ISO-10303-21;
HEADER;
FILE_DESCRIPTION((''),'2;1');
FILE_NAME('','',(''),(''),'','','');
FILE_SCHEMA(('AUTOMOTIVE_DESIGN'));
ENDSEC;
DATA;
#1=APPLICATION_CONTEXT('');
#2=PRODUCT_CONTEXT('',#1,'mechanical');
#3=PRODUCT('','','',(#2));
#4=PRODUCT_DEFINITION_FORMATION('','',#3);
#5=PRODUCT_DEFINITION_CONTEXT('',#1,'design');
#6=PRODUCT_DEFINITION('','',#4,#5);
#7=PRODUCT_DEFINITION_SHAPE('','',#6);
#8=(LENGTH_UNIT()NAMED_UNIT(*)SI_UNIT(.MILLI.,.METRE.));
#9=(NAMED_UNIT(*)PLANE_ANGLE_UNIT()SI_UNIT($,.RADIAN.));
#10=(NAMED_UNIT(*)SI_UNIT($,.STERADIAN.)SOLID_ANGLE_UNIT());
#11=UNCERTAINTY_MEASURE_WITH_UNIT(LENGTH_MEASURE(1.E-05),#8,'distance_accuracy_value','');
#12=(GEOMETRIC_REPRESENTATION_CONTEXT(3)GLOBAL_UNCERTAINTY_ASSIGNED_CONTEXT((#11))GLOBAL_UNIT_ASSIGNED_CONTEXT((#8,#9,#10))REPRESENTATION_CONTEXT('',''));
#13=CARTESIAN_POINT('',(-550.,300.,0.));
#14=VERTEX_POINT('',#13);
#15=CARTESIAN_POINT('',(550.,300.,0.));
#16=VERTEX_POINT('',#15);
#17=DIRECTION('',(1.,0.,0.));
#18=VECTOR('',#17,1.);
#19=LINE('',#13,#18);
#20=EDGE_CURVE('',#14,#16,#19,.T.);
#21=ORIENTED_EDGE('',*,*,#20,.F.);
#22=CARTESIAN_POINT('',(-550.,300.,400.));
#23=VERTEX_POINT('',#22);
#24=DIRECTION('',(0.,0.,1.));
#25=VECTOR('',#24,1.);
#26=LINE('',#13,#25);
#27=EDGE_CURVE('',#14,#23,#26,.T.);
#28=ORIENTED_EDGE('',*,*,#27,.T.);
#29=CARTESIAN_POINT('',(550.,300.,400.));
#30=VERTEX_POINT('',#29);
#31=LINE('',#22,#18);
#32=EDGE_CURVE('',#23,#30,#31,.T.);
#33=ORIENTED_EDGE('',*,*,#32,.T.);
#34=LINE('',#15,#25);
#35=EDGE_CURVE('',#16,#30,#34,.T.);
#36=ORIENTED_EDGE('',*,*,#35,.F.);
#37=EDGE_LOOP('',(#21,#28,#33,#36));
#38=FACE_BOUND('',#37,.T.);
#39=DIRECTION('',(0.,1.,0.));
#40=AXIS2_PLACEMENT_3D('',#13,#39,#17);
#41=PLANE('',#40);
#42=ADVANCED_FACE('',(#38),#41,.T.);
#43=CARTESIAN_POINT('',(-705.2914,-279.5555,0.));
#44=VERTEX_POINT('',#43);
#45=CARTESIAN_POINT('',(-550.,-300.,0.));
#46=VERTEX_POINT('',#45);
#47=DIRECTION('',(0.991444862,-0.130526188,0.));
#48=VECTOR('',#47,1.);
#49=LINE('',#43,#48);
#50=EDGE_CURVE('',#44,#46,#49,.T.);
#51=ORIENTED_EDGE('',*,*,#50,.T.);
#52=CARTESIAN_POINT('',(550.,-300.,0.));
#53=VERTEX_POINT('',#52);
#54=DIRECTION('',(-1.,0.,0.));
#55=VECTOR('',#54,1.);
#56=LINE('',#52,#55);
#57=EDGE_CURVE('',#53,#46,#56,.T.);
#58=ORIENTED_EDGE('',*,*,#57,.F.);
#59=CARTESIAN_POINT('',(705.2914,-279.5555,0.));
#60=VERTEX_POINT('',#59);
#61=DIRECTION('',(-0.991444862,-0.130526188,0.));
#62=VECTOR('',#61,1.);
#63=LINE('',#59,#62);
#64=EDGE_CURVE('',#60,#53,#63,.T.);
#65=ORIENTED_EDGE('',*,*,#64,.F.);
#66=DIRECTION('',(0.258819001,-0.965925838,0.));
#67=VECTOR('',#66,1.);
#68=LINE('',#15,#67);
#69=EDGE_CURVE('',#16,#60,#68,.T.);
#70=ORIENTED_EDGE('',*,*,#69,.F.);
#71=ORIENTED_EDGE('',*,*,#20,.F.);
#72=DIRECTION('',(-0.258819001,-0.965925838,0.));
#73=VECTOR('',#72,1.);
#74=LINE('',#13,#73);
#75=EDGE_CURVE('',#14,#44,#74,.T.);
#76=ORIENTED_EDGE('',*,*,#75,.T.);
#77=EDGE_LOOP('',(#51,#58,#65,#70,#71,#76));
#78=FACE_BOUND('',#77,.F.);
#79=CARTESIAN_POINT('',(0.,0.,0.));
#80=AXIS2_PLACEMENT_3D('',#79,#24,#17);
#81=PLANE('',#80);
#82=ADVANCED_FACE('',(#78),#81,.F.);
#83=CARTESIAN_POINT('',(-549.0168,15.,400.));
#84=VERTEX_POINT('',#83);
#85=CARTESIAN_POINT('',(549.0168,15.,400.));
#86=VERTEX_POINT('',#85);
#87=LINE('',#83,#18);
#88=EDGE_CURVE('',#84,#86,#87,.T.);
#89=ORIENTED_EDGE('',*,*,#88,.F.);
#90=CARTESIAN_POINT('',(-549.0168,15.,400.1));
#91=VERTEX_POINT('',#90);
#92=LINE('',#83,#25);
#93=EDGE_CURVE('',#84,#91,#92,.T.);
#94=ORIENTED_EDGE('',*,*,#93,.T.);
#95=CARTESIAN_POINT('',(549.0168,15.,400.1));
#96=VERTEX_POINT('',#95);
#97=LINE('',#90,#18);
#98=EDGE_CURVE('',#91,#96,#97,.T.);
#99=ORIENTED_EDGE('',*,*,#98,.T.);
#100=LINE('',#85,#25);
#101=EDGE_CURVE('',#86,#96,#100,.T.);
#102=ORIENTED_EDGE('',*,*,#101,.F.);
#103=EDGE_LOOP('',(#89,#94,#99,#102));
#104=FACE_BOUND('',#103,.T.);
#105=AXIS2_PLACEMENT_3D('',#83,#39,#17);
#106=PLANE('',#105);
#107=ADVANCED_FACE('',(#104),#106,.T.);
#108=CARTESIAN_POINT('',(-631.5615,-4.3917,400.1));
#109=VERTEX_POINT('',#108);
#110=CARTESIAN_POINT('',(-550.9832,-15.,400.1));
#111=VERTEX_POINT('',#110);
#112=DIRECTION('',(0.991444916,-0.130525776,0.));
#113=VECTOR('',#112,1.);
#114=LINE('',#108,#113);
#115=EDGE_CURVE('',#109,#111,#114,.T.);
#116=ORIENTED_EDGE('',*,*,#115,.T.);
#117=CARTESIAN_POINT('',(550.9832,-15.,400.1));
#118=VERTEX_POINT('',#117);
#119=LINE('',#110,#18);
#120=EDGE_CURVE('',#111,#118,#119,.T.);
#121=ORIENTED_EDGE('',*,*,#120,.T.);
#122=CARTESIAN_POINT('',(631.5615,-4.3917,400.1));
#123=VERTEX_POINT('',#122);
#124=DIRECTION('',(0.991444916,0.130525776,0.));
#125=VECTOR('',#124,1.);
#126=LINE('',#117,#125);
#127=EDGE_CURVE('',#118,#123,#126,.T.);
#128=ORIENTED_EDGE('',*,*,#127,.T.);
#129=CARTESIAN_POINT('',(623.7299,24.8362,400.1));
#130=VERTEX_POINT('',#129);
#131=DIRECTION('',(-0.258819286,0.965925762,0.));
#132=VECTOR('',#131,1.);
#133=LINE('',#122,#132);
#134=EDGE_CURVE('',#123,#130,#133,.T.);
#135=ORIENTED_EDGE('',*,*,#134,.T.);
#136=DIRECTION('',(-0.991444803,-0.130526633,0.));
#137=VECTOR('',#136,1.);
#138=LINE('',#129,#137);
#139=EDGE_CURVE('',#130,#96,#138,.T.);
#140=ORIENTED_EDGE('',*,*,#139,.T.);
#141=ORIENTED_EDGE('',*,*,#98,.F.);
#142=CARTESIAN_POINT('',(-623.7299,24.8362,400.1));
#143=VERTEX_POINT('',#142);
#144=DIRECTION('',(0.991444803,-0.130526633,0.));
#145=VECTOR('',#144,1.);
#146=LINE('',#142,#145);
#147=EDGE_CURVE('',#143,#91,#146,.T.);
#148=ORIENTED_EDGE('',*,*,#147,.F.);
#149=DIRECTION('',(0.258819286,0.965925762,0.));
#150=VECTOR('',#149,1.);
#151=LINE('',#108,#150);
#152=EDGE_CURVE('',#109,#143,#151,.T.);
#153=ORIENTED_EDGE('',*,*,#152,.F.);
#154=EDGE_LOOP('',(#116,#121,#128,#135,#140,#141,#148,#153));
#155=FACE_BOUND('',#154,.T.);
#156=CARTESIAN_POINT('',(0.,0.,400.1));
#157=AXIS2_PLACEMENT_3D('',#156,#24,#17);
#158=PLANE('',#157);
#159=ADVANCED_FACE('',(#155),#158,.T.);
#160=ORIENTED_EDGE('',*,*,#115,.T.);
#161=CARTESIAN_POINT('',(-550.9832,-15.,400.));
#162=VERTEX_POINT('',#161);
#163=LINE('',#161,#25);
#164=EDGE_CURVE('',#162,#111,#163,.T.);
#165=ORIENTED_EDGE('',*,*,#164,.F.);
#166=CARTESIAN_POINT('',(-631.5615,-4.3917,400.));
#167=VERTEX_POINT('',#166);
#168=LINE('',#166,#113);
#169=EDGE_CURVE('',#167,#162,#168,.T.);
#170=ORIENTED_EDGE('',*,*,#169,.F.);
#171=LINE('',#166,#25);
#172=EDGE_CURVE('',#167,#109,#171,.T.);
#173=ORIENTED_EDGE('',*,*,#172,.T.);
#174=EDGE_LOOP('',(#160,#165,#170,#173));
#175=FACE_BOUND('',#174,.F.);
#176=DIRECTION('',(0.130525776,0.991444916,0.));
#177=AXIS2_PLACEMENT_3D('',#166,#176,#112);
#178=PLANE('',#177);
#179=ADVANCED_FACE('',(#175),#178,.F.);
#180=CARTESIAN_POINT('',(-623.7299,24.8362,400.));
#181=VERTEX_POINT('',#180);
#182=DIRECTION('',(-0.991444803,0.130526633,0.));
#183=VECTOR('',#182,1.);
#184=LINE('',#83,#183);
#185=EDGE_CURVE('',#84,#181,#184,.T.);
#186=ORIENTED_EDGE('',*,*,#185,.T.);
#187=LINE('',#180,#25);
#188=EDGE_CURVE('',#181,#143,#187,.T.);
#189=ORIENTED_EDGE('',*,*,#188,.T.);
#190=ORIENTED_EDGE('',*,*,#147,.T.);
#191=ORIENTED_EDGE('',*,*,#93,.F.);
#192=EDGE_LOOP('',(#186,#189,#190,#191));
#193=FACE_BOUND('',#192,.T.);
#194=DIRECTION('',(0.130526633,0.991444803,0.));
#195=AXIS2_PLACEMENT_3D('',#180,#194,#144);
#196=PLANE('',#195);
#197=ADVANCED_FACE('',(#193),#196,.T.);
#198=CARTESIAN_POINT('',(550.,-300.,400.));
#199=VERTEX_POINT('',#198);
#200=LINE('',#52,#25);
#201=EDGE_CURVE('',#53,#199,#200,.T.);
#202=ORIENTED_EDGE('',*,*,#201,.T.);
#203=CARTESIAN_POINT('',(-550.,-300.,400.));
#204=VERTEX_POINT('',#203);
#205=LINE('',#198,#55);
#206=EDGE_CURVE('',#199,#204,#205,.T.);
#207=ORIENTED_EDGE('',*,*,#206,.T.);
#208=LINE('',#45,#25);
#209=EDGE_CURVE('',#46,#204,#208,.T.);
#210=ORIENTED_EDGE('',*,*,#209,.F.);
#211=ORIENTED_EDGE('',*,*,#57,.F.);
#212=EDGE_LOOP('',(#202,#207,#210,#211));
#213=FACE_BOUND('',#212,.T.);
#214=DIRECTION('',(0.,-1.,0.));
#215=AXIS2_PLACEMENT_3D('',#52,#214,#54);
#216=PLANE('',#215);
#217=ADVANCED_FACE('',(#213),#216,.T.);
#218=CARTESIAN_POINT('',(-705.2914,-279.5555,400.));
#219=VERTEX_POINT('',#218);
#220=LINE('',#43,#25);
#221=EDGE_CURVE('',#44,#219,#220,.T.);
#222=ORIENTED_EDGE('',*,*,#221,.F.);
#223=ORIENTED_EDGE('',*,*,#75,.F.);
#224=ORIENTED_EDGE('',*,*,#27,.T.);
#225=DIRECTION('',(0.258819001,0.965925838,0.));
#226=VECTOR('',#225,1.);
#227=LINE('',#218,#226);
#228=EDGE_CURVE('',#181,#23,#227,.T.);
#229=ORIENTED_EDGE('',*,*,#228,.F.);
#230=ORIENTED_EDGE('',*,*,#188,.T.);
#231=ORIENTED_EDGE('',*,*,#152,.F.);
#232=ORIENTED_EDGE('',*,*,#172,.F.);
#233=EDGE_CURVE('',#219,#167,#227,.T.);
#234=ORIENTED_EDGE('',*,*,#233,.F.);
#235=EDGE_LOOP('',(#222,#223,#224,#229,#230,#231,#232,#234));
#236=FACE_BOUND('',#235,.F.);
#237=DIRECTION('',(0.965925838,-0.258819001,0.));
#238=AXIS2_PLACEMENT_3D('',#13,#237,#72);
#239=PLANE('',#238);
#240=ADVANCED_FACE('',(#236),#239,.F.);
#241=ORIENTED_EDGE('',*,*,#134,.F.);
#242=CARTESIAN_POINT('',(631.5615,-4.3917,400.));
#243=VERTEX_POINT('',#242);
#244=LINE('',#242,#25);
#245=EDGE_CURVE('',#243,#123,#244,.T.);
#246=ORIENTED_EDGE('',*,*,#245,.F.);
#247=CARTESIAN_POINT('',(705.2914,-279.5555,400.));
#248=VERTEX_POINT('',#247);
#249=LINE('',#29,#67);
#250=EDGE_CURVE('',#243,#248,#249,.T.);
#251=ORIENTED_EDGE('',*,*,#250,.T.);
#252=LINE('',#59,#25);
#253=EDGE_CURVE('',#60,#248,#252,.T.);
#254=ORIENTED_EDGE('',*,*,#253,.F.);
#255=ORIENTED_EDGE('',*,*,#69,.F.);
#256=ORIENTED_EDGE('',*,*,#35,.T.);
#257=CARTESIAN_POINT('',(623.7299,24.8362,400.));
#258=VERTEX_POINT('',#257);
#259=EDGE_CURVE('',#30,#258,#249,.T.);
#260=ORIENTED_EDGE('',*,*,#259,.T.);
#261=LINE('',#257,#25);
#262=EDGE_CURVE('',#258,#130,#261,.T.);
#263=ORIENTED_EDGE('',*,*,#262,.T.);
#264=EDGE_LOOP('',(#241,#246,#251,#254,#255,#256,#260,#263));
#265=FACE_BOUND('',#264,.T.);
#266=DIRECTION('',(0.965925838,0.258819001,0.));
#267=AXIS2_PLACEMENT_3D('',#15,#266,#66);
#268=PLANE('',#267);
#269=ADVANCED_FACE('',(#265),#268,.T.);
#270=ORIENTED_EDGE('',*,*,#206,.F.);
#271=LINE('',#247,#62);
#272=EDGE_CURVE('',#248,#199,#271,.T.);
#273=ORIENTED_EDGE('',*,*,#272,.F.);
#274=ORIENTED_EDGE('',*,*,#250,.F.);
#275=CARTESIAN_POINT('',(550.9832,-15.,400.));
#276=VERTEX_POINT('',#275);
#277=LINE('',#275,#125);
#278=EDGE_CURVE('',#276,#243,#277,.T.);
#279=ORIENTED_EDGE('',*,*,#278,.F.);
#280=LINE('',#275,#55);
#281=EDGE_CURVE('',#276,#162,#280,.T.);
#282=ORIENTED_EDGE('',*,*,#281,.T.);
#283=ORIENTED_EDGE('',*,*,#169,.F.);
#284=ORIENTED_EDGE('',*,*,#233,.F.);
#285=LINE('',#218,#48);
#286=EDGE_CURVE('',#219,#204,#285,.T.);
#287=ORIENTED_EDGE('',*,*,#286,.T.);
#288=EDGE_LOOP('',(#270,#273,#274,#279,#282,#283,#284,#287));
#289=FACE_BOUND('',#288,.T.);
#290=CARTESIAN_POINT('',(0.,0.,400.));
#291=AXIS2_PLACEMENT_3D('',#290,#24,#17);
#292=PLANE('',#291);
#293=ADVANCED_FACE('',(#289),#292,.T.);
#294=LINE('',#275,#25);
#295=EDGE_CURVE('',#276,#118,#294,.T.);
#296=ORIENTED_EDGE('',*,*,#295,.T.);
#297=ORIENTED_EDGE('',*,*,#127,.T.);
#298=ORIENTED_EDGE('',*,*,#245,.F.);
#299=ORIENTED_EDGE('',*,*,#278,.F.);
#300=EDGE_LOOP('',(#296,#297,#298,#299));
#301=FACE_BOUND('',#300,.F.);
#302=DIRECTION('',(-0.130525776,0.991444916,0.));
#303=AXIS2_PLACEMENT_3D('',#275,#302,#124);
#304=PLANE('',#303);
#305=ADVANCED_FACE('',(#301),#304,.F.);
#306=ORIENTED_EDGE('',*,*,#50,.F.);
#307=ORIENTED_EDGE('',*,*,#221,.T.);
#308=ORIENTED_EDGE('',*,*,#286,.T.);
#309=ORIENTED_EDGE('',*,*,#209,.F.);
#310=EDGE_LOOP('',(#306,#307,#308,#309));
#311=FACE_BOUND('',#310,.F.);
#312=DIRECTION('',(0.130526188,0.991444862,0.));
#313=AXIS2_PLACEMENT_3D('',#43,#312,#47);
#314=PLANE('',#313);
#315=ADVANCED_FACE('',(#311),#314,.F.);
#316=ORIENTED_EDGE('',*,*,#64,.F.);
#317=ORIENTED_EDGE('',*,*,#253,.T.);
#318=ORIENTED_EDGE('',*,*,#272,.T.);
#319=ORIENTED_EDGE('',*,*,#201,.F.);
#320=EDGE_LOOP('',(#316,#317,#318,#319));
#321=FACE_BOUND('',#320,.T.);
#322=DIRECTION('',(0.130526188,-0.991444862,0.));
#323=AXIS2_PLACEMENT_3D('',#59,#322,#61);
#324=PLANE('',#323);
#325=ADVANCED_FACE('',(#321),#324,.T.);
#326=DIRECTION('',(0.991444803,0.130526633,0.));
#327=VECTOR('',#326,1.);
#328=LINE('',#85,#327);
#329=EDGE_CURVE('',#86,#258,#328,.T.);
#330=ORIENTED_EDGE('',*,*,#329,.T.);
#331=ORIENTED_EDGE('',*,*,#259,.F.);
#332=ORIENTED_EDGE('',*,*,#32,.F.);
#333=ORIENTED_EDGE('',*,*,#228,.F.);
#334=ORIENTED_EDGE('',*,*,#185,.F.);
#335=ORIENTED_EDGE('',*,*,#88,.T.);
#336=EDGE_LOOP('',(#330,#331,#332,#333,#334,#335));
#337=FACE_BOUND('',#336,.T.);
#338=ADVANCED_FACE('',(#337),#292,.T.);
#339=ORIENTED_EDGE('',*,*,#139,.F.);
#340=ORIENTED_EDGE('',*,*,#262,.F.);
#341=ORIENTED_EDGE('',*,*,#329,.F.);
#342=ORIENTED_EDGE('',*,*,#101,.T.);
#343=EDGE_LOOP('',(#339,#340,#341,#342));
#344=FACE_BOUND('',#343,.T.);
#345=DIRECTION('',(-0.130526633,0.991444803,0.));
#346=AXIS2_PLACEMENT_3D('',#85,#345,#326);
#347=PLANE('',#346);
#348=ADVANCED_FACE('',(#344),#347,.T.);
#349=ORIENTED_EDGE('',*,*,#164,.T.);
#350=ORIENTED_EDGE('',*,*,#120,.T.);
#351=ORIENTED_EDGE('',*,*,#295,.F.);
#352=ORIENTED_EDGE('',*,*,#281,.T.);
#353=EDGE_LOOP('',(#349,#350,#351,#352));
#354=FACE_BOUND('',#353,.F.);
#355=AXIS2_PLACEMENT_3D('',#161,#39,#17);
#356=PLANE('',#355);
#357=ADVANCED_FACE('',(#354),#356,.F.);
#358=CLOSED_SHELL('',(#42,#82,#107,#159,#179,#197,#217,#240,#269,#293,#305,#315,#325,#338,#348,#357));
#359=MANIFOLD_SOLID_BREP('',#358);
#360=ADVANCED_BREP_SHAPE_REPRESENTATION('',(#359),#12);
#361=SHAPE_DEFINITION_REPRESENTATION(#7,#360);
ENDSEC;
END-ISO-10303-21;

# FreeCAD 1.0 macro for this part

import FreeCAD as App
import Part
import Sketcher

V = App.Vector
Q = App.Units.Quantity

doc = App.newDocument("Part")
body = doc.addObject("PartDesign::Body", "Body")

# Sketch on XY plane
sketch1 = body.newObject("Sketcher::SketchObject", "Sketch")
sketch1.AttachmentSupport = (doc.getObject("XY_Plane"), [""])
sketch1.MapMode = "FlatFace"
sketch1.addGeometry(Part.LineSegment(V(550, 300, 0), V(-550, 300, 0)), False)
sketch1.addGeometry(Part.LineSegment(V(-550, 300, 0), V(-705, -280, 0)), False)
sketch1.addGeometry(Part.LineSegment(V(-705, -280, 0), V(-550, -300, 0)), False)
sketch1.addGeometry(Part.LineSegment(V(-550, -300, 0), V(550, -300, 0)), False)
sketch1.addGeometry(Part.LineSegment(V(550, -300, 0), V(705, -280, 0)), False)
sketch1.addGeometry(Part.LineSegment(V(705, -280, 0), V(550, 300, 0)), False)
sketch1.addConstraint(Sketcher.Constraint("Coincident", 0, 2, 1, 1))
sketch1.addConstraint(Sketcher.Constraint("Coincident", 1, 2, 2, 1))
sketch1.addConstraint(Sketcher.Constraint("Coincident", 2, 2, 3, 1))
sketch1.addConstraint(Sketcher.Constraint("Coincident", 3, 2, 4, 1))
sketch1.addConstraint(Sketcher.Constraint("Coincident", 4, 2, 5, 1))
sketch1.addConstraint(Sketcher.Constraint("Coincident", 5, 2, 0, 1))
sketch1.addConstraint(Sketcher.Constraint("Horizontal", 0))
sketch1.addConstraint(Sketcher.Constraint("Horizontal", 3))
sketch1.addConstraint(Sketcher.Constraint("Symmetric", 0, 2, 3, 2, -1, 1))
sketch1.addConstraint(Sketcher.Constraint("Symmetric", 1, 2, 4, 2, -2))
sketch1.addConstraint(Sketcher.Constraint("Vertical", 0, 2, 2, 2))
sketch1.addConstraint(Sketcher.Constraint("Vertical", 3, 2, 5, 2))
sketch1.addConstraint(Sketcher.Constraint("DistanceX", 0, 2, 0, 1, Q("1100 mm")))
sketch1.addConstraint(Sketcher.Constraint("Distance", 1, Q("600 mm")))
sketch1.addConstraint(Sketcher.Constraint("DistanceY", 2, 2, 0, 2, Q("600 mm")))
sketch1.addConstraint(Sketcher.Constraint("Angle", 1, Q("-105 deg")))
pad1 = body.newObject("PartDesign::Pad", "Pad")
pad1.Profile = sketch1
pad1.Length = 400

# Sketch on XY plane
sketch2 = body.newObject("Sketcher::SketchObject", "Sketch001")
sketch2.AttachmentSupport = (doc.getObject("XY_Plane"), [""])
sketch2.MapMode = "FlatFace"
sketch2.AttachmentOffset = App.Placement(V(0, 0, 400), App.Rotation())
sketch2.addGeometry(Part.LineSegment(V(-624, 25, 0), V(-632, -4, 0)), False)
sketch2.addGeometry(Part.LineSegment(V(-632, -4, 0), V(-551, -15, 0)), False)
sketch2.addGeometry(Part.LineSegment(V(-551, -15, 0), V(551, -15, 0)), False)
sketch2.addGeometry(Part.LineSegment(V(551, -15, 0), V(632, -4, 0)), False)
sketch2.addGeometry(Part.LineSegment(V(632, -4, 0), V(624, 25, 0)), False)
sketch2.addGeometry(Part.LineSegment(V(624, 25, 0), V(549, 15, 0)), False)
sketch2.addGeometry(Part.LineSegment(V(549, 15, 0), V(-549, 15, 0)), False)
sketch2.addGeometry(Part.LineSegment(V(-549, 15, 0), V(-624, 25, 0)), False)
sketch2.addConstraint(Sketcher.Constraint("Coincident", 0, 2, 1, 1))
sketch2.addConstraint(Sketcher.Constraint("Coincident", 1, 2, 2, 1))
sketch2.addConstraint(Sketcher.Constraint("Coincident", 2, 2, 3, 1))
sketch2.addConstraint(Sketcher.Constraint("Coincident", 3, 2, 4, 1))
sketch2.addConstraint(Sketcher.Constraint("Coincident", 4, 2, 5, 1))
sketch2.addConstraint(Sketcher.Constraint("Coincident", 5, 2, 6, 1))
sketch2.addConstraint(Sketcher.Constraint("Coincident", 6, 2, 7, 1))
sketch2.addConstraint(Sketcher.Constraint("Coincident", 7, 2, 0, 1))
sketch2.addConstraint(Sketcher.Constraint("Horizontal", 2))
sketch2.addConstraint(Sketcher.Constraint("Horizontal", 6))
sketch2.addConstraint(Sketcher.Constraint("Symmetric", 0, 2, 3, 2, -2))
sketch2.addConstraint(Sketcher.Constraint("Symmetric", 4, 2, 7, 2, -2))
sketch2.addConstraint(Sketcher.Constraint("Parallel", 3, 5))
sketch2.addConstraint(Sketcher.Constraint("Parallel", 1, 7))
sketch2.addConstraint(Sketcher.Constraint("Equal", 1, 3))
sketch2.addConstraint(Sketcher.Constraint("DistanceY", 1, 2, -1, 1, Q("15 mm")))
sketch2.addConstraint(Sketcher.Constraint("DistanceY", -1, 1, 5, 2, Q("15 mm")))
sketch2.addConstraint(Sketcher.Constraint("Angle", 0, Q("-105 deg")))
sketch2.addConstraint(Sketcher.Constraint("Angle", 1, Q("-7.5 deg")))
sketch2.addConstraint(Sketcher.Constraint("DistanceX", 1, 2, 5, 2, Q("1100 mm")))
sketch2.addConstraint(Sketcher.Constraint("DistanceX", -1, 1, 4, 2, Q("623.73 mm")))
sketch2.addConstraint(Sketcher.Constraint("Distance", 0, Q("30.259 mm")))
pad2 = body.newObject("PartDesign::Pad", "Pad001")
pad2.Profile = sketch2
pad2.Length = 0.1

doc.recompute()
